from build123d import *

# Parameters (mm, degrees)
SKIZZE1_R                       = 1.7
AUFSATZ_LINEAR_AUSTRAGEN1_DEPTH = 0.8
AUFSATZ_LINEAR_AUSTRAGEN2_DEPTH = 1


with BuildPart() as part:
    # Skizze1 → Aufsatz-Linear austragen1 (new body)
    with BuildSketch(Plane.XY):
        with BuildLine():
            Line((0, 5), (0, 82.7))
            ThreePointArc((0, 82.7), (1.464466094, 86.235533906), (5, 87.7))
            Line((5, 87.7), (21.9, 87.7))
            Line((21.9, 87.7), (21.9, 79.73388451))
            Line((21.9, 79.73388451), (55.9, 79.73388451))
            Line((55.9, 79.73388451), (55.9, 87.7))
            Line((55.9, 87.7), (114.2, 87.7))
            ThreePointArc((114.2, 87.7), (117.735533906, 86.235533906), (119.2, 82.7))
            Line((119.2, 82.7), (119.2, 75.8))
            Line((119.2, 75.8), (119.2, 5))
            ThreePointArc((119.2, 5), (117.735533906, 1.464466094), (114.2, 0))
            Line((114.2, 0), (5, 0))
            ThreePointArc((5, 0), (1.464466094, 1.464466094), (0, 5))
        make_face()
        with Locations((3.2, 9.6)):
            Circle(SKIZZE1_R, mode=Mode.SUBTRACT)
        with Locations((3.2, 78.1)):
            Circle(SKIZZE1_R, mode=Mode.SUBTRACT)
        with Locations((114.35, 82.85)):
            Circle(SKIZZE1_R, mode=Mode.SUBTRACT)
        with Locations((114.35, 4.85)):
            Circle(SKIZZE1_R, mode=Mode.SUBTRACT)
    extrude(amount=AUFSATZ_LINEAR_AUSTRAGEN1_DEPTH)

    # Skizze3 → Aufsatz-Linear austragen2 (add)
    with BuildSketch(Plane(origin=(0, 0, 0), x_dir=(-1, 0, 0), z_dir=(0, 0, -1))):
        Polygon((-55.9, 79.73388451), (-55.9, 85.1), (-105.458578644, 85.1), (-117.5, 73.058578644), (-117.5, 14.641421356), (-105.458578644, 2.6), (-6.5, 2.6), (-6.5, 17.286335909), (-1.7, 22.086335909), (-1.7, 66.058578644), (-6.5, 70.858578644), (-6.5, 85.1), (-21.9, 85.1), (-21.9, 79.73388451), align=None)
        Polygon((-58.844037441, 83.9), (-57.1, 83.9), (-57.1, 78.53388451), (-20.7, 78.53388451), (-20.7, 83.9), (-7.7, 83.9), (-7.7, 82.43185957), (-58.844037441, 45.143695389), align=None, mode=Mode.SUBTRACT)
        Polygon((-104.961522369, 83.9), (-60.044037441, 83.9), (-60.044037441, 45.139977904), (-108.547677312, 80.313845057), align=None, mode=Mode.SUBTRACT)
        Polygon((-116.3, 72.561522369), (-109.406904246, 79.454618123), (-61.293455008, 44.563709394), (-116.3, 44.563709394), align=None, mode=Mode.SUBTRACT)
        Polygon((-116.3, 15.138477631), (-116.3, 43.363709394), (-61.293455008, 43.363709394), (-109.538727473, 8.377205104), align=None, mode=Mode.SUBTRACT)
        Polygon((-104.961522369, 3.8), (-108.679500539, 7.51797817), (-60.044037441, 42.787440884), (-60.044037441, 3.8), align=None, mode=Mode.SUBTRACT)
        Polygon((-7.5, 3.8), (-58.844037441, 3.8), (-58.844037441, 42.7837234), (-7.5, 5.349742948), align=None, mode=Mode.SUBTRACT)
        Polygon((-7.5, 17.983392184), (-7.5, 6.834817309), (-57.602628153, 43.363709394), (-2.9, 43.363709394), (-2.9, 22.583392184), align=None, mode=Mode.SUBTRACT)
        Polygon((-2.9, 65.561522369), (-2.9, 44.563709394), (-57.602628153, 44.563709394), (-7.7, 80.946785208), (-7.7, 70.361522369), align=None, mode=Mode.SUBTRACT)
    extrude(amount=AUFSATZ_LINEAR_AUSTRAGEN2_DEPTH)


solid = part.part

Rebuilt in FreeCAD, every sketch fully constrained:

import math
import FreeCAD as App
import Part
import Sketcher

V = App.Vector
Q = App.Units.Quantity


def add_polygon(sketch, points):
    """Adds a closed chain of lines whose ends are joined by coincident constraints."""
    first, n = sketch.GeometryCount, len(points)
    for a, b in zip(points, points[1:] + points[:1]):
        sketch.addGeometry(Part.LineSegment(App.Vector(*a, 0), App.Vector(*b, 0)), False)
    for i in range(n):
        sketch.addConstraint(Sketcher.Constraint("Coincident", first + i, 2, first + (i + 1) % n, 1))

doc = App.newDocument("Part")
body = doc.addObject("PartDesign::Body", "Body")

# Sketch on XY plane
sketch1 = body.newObject("Sketcher::SketchObject", "Sketch")
sketch1.AttachmentSupport = (doc.getObject("XY_Plane"), [""])
sketch1.MapMode = "FlatFace"
sketch1.addGeometry([
    Part.LineSegment(V(0, 82.7, 0), V(0, 5, 0)),  # 0
    Part.ArcOfCircle(Part.Circle(V(5, 5, 0), V(0, 0, 1), 5), math.radians(180), math.radians(270)),  # 1
    Part.LineSegment(V(5, 0, 0), V(114.2, 0, 0)),  # 2
    Part.ArcOfCircle(Part.Circle(V(114.2, 5, 0), V(0, 0, 1), 5), math.radians(-90), math.radians(0)),  # 3
    Part.LineSegment(V(119.2, 5, 0), V(119.2, 82.7, 0)),  # 4
    Part.ArcOfCircle(Part.Circle(V(114.2, 82.7, 0), V(0, 0, 1), 5), math.radians(0), math.radians(90)),  # 5
    Part.LineSegment(V(114.2, 87.7, 0), V(55.9, 87.7, 0)),  # 6
    Part.LineSegment(V(55.9, 87.7, 0), V(55.9, 79.7, 0)),  # 7
    Part.LineSegment(V(55.9, 79.7, 0), V(21.9, 79.7, 0)),  # 8
    Part.LineSegment(V(21.9, 79.7, 0), V(21.9, 87.7, 0)),  # 9
    Part.LineSegment(V(21.9, 87.7, 0), V(5, 87.7, 0)),  # 10
    Part.ArcOfCircle(Part.Circle(V(5, 82.7, 0), V(0, 0, 1), 5), math.radians(90), math.radians(180)),  # 11
    Part.Circle(V(114.3, 4.8, 0), V(0, 0, 1), 1.7),  # 12
    Part.Circle(V(3.2, 9.6, 0), V(0, 0, 1), 1.7),  # 13
    Part.Circle(V(114.3, 82.8, 0), V(0, 0, 1), 1.7),  # 14
    Part.Circle(V(3.2, 78.1, 0), V(0, 0, 1), 1.7),  # 15
], False)
sketch1.addConstraint([
    Sketcher.Constraint("Tangent", 0, 2, 1, 1),
    Sketcher.Constraint("Tangent", 1, 2, 2, 1),
    Sketcher.Constraint("Tangent", 2, 2, 3, 1),
    Sketcher.Constraint("Tangent", 3, 2, 4, 1),
    Sketcher.Constraint("Tangent", 4, 2, 5, 1),
    Sketcher.Constraint("Tangent", 5, 2, 6, 1),
    Sketcher.Constraint("Coincident", 6, 2, 7, 1),
    Sketcher.Constraint("Coincident", 7, 2, 8, 1),
    Sketcher.Constraint("Coincident", 8, 2, 9, 1),
    Sketcher.Constraint("Coincident", 9, 2, 10, 1),
    Sketcher.Constraint("Tangent", 10, 2, 11, 1),
    Sketcher.Constraint("Tangent", 11, 2, 0, 1),
    Sketcher.Constraint("Vertical", 0),
    Sketcher.Constraint("Horizontal", 2),
    Sketcher.Constraint("Vertical", 4),
    Sketcher.Constraint("Horizontal", 6),
    Sketcher.Constraint("Vertical", 7),
    Sketcher.Constraint("Horizontal", 8),
    Sketcher.Constraint("Vertical", 9),
    Sketcher.Constraint("Horizontal", 10),
    Sketcher.Constraint("Equal", 1, 3),
    Sketcher.Constraint("Equal", 3, 5),
    Sketcher.Constraint("Equal", 5, 11),
    Sketcher.Constraint("Equal", 12, 13),
    Sketcher.Constraint("Equal", 13, 14),
    Sketcher.Constraint("Equal", 14, 15),
    Sketcher.Constraint("PointOnObject", 0, 2, -2),
    Sketcher.Constraint("PointOnObject", 1, 2, -1),
    Sketcher.Constraint("Horizontal", 5, 3, 11, 3),
    Sketcher.Constraint("Vertical", 12, 3, 14, 3),
    Sketcher.Constraint("Vertical", 13, 3, 15, 3),
    Sketcher.Constraint("Radius", 1, Q("5 mm")),
    Sketcher.Constraint("Diameter", 12, Q("3.4 mm")),
    Sketcher.Constraint("DistanceX", 8, 2, 8, 1, Q("34 mm")),
    Sketcher.Constraint("DistanceX", 2, 1, 2, 2, Q("109.2 mm")),
    Sketcher.Constraint("DistanceX", 6, 2, 6, 1, Q("58.3 mm")),
    Sketcher.Constraint("DistanceY", 0, 2, 0, 1, Q("77.7 mm")),
    Sketcher.Constraint("DistanceX", 13, 3, 3, 3, Q("111 mm")),
    Sketcher.Constraint("DistanceY", 12, 3, 14, 3, Q("78 mm")),
    Sketcher.Constraint("DistanceY", -1, 1, 13, 3, Q("9.6 mm")),
    Sketcher.Constraint("DistanceY", -1, 1, 15, 3, Q("78.1 mm")),
    Sketcher.Constraint("DistanceX", -1, 1, 12, 3, Q("114.35 mm")),
    Sketcher.Constraint("DistanceY", -1, 1, 12, 3, Q("4.85 mm")),
    Sketcher.Constraint("DistanceY", 7, 2, 7, 1, Q("7.966115 mm")),
])
pad1 = body.newObject("PartDesign::Pad", "Pad")
pad1.Profile = sketch1
pad1.Length = 0.8

# Sketch on XY plane
sketch2 = body.newObject("Sketcher::SketchObject", "Sketch001")
sketch2.AttachmentSupport = (doc.getObject("XY_Plane"), [""])
sketch2.MapMode = "FlatFace"
add_polygon(sketch2, [(55.9, 79.7), (55.9, 85.1), (105.5, 85.1), (117.5, 73.1), (117.5, 14.6), (105.5, 2.6), (6.5, 2.6), (6.5, 17.3), (1.7, 22.1), (1.7, 66.1), (6.5, 70.9), (6.5, 85.1), (21.9, 85.1), (21.9, 79.7)])  # lines 0-13
add_polygon(sketch2, [(60, 3.8), (105, 3.8), (108.7, 7.5), (60, 42.8)])  # lines 14-17
add_polygon(sketch2, [(109.5, 8.4), (116.3, 15.1), (116.3, 43.4), (61.3, 43.4)])  # lines 18-21
add_polygon(sketch2, [(7.5, 5.3), (7.5, 3.8), (58.8, 3.8), (58.8, 42.8)])  # lines 22-25
add_polygon(sketch2, [(2.9, 22.6), (7.5, 18), (7.5, 6.8), (57.6, 43.4), (2.9, 43.4)])  # lines 26-30
add_polygon(sketch2, [(116.3, 44.6), (116.3, 72.6), (109.4, 79.5), (61.3, 44.6)])  # lines 31-34
add_polygon(sketch2, [(108.5, 80.3), (105, 83.9), (60, 83.9), (60, 45.1)])  # lines 35-38
add_polygon(sketch2, [(7.7, 70.4), (2.9, 65.6), (2.9, 44.6), (57.6, 44.6), (7.7, 80.9)])  # lines 39-43
add_polygon(sketch2, [(58.8, 45.1), (58.8, 83.9), (57.1, 83.9), (57.1, 78.5), (20.7, 78.5), (20.7, 83.9), (7.7, 83.9), (7.7, 82.4)])  # lines 44-51
sketch2.addConstraint([
    Sketcher.Constraint("Vertical", 0),
    Sketcher.Constraint("Horizontal", 1),
    Sketcher.Constraint("Vertical", 3),
    Sketcher.Constraint("Horizontal", 5),
    Sketcher.Constraint("Vertical", 6),
    Sketcher.Constraint("Vertical", 8),
    Sketcher.Constraint("Vertical", 10),
    Sketcher.Constraint("Horizontal", 11),
    Sketcher.Constraint("Vertical", 12),
    Sketcher.Constraint("Horizontal", 13),
    Sketcher.Constraint("Horizontal", 14),
    Sketcher.Constraint("Vertical", 17),
    Sketcher.Constraint("Vertical", 19),
    Sketcher.Constraint("Horizontal", 20),
    Sketcher.Constraint("Vertical", 22),
    Sketcher.Constraint("Horizontal", 23),
    Sketcher.Constraint("Vertical", 24),
    Sketcher.Constraint("Vertical", 27),
    Sketcher.Constraint("Horizontal", 29),
    Sketcher.Constraint("Vertical", 30),
    Sketcher.Constraint("Vertical", 31),
    Sketcher.Constraint("Horizontal", 34),
    Sketcher.Constraint("Horizontal", 36),
    Sketcher.Constraint("Vertical", 37),
    Sketcher.Constraint("Vertical", 40),
    Sketcher.Constraint("Horizontal", 41),
    Sketcher.Constraint("Vertical", 43),
    Sketcher.Constraint("Vertical", 44),
    Sketcher.Constraint("Horizontal", 45),
    Sketcher.Constraint("Vertical", 46),
    Sketcher.Constraint("Horizontal", 47),
    Sketcher.Constraint("Vertical", 48),
    Sketcher.Constraint("Horizontal", 49),
    Sketcher.Constraint("Vertical", 50),
    Sketcher.Constraint("Perpendicular", 2, 4),
    Sketcher.Constraint("Perpendicular", 4, 7),
    Sketcher.Constraint("Perpendicular", 7, 9),
    Sketcher.Constraint("Parallel", 9, 15),
    Sketcher.Constraint("Parallel", 15, 18),
    Sketcher.Constraint("Parallel", 16, 21),
    Sketcher.Constraint("Perpendicular", 18, 26),
    Sketcher.Constraint("Parallel", 25, 28),
    Sketcher.Constraint("Parallel", 26, 32),
    Sketcher.Constraint("Parallel", 32, 35),
    Sketcher.Constraint("Parallel", 33, 38),
    Sketcher.Constraint("Perpendicular", 35, 39),
    Sketcher.Constraint("Parallel", 42, 51),
    Sketcher.Constraint("Horizontal", 1, 2, 10, 2),
    Sketcher.Constraint("Horizontal", 17, 2, 22, 2),
    Sketcher.Constraint("Horizontal", 20, 2, 28, 2),
    Sketcher.Constraint("Horizontal", 34, 2, 40, 2),
    Sketcher.Constraint("Horizontal", 36, 2, 44, 2),
    Sketcher.Constraint("Horizontal", 45, 2, 48, 2),
    Sketcher.Constraint("Vertical", 1, 2, 4, 2),
    Sketcher.Constraint("Vertical", 6, 2, 9, 2),
    Sketcher.Constraint("Vertical", 25, 2, 26, 2),
    Sketcher.Constraint("Vertical", 19, 2, 31, 2),
    Sketcher.Constraint("Vertical", 20, 2, 33, 2),
    Sketcher.Constraint("Vertical", 14, 2, 35, 2),
    Sketcher.Constraint("Vertical", 17, 2, 36, 2),
    Sketcher.Constraint("Vertical", 30, 2, 39, 2),
    Sketcher.Constraint("Vertical", 28, 2, 41, 2),
    Sketcher.Constraint("Vertical", 24, 2, 44, 2),
    Sketcher.Constraint("Vertical", 43, 2, 49, 2),
    Sketcher.Constraint("Equal", 12, 46),
    Sketcher.Constraint("Equal", 2, 4),
    Sketcher.Constraint("Equal", 9, 39),
    Sketcher.Constraint("DistanceX", 13, 1, 13, 2, Q("34 mm")),
    Sketcher.Constraint("DistanceX", 49, 2, 49, 1, Q("13 mm")),
    Sketcher.Constraint("DistanceX", 11, 1, 11, 2, Q("15.4 mm")),
    Sketcher.Constraint("DistanceX", 47, 2, 47, 1, Q("36.4 mm")),
    Sketcher.Constraint("DistanceX", 5, 2, 3, 2, Q("111 mm")),
    Sketcher.Constraint("DistanceX", 5, 2, 22, 2, Q("1 mm")),
    Sketcher.Constraint("DistanceX", 39, 2, 12, 2, Q("19 mm")),
    Sketcher.Constraint("DistanceX", 8, 2, 42, 2, Q("6 mm")),
    Sketcher.Constraint("DistanceX", -1, 1, 0, 2, Q("55.9 mm")),
    Sketcher.Constraint("DistanceY", -1, 1, 0, 2, Q("85.1 mm")),
    Sketcher.Constraint("DistanceY", -1, 1, 4, 2, Q("2.6 mm")),
    Sketcher.Constraint("DistanceY", -1, 1, 14, 2, Q("3.8 mm")),
    Sketcher.Constraint("DistanceX", -1, 1, 18, 2, Q("116.3 mm")),
    Sketcher.Constraint("DistanceY", -1, 1, 35, 2, Q("83.9 mm")),
    Sketcher.Constraint("DistanceX", 23, 2, 17, 2, Q("1.2 mm")),
    Sketcher.Constraint("DistanceY", 20, 2, 33, 2, Q("1.2 mm")),
    Sketcher.Constraint("DistanceX", 1, 1, 1, 2, Q("49.558579 mm")),
    Sketcher.Constraint("DistanceX", 29, 2, 29, 1, Q("54.702628 mm")),
    Sketcher.Constraint("DistanceY", 10, 1, 10, 2, Q("14.241421 mm")),
    Sketcher.Constraint("DistanceY", 17, 2, 17, 1, Q("38.987441 mm")),
    Sketcher.Constraint("DistanceY", 19, 1, 19, 2, Q("28.225232 mm")),
    Sketcher.Constraint("DistanceY", 50, 2, 50, 1, Q("1.46814 mm")),
    Sketcher.Constraint("DistanceX", -1, 1, 15, 2, Q("108.679501 mm")),
    Sketcher.Constraint("DistanceY", 15, 2, 2, 2, Q("65.5406 mm")),
    Sketcher.Constraint("DistanceY", 15, 2, 18, 2, Q("7.620499 mm")),
    Sketcher.Constraint("DistanceY", 3, 2, 31, 2, Q("57.920101 mm")),
    Sketcher.Constraint("DistanceX", 1, 2, 38, 2, Q("3.089099 mm")),
    Sketcher.Constraint("DistanceY", 12, 2, 42, 2, Q("1.212901 mm")),
    Sketcher.Constraint("Distance", 16, Q("60.07781 mm")),
    Sketcher.Constraint("Distance", 21, Q("59.59582 mm")),
    Sketcher.Constraint("Distance", 25, Q("63.541428 mm")),
    Sketcher.Constraint("Distance", 32, Q("9.74831 mm")),
    Sketcher.Constraint("DistanceY", 0, 1, 0, 2, Q("5.366115 mm")),
    Sketcher.Constraint("DistanceY", 6, 1, 6, 2, Q("14.686336 mm")),
    Sketcher.Constraint("DistanceY", 22, 2, 22, 1, Q("1.549743 mm")),
    Sketcher.Constraint("DistanceY", 27, 2, 27, 1, Q("11.148575 mm")),
    Sketcher.Constraint("DistanceY", 40, 2, 40, 1, Q("20.997813 mm")),
])
pad2 = body.newObject("PartDesign::Pad", "Pad001")
pad2.Profile = sketch2
pad2.Length = 1
pad2.Reversed = True

doc.recompute()
